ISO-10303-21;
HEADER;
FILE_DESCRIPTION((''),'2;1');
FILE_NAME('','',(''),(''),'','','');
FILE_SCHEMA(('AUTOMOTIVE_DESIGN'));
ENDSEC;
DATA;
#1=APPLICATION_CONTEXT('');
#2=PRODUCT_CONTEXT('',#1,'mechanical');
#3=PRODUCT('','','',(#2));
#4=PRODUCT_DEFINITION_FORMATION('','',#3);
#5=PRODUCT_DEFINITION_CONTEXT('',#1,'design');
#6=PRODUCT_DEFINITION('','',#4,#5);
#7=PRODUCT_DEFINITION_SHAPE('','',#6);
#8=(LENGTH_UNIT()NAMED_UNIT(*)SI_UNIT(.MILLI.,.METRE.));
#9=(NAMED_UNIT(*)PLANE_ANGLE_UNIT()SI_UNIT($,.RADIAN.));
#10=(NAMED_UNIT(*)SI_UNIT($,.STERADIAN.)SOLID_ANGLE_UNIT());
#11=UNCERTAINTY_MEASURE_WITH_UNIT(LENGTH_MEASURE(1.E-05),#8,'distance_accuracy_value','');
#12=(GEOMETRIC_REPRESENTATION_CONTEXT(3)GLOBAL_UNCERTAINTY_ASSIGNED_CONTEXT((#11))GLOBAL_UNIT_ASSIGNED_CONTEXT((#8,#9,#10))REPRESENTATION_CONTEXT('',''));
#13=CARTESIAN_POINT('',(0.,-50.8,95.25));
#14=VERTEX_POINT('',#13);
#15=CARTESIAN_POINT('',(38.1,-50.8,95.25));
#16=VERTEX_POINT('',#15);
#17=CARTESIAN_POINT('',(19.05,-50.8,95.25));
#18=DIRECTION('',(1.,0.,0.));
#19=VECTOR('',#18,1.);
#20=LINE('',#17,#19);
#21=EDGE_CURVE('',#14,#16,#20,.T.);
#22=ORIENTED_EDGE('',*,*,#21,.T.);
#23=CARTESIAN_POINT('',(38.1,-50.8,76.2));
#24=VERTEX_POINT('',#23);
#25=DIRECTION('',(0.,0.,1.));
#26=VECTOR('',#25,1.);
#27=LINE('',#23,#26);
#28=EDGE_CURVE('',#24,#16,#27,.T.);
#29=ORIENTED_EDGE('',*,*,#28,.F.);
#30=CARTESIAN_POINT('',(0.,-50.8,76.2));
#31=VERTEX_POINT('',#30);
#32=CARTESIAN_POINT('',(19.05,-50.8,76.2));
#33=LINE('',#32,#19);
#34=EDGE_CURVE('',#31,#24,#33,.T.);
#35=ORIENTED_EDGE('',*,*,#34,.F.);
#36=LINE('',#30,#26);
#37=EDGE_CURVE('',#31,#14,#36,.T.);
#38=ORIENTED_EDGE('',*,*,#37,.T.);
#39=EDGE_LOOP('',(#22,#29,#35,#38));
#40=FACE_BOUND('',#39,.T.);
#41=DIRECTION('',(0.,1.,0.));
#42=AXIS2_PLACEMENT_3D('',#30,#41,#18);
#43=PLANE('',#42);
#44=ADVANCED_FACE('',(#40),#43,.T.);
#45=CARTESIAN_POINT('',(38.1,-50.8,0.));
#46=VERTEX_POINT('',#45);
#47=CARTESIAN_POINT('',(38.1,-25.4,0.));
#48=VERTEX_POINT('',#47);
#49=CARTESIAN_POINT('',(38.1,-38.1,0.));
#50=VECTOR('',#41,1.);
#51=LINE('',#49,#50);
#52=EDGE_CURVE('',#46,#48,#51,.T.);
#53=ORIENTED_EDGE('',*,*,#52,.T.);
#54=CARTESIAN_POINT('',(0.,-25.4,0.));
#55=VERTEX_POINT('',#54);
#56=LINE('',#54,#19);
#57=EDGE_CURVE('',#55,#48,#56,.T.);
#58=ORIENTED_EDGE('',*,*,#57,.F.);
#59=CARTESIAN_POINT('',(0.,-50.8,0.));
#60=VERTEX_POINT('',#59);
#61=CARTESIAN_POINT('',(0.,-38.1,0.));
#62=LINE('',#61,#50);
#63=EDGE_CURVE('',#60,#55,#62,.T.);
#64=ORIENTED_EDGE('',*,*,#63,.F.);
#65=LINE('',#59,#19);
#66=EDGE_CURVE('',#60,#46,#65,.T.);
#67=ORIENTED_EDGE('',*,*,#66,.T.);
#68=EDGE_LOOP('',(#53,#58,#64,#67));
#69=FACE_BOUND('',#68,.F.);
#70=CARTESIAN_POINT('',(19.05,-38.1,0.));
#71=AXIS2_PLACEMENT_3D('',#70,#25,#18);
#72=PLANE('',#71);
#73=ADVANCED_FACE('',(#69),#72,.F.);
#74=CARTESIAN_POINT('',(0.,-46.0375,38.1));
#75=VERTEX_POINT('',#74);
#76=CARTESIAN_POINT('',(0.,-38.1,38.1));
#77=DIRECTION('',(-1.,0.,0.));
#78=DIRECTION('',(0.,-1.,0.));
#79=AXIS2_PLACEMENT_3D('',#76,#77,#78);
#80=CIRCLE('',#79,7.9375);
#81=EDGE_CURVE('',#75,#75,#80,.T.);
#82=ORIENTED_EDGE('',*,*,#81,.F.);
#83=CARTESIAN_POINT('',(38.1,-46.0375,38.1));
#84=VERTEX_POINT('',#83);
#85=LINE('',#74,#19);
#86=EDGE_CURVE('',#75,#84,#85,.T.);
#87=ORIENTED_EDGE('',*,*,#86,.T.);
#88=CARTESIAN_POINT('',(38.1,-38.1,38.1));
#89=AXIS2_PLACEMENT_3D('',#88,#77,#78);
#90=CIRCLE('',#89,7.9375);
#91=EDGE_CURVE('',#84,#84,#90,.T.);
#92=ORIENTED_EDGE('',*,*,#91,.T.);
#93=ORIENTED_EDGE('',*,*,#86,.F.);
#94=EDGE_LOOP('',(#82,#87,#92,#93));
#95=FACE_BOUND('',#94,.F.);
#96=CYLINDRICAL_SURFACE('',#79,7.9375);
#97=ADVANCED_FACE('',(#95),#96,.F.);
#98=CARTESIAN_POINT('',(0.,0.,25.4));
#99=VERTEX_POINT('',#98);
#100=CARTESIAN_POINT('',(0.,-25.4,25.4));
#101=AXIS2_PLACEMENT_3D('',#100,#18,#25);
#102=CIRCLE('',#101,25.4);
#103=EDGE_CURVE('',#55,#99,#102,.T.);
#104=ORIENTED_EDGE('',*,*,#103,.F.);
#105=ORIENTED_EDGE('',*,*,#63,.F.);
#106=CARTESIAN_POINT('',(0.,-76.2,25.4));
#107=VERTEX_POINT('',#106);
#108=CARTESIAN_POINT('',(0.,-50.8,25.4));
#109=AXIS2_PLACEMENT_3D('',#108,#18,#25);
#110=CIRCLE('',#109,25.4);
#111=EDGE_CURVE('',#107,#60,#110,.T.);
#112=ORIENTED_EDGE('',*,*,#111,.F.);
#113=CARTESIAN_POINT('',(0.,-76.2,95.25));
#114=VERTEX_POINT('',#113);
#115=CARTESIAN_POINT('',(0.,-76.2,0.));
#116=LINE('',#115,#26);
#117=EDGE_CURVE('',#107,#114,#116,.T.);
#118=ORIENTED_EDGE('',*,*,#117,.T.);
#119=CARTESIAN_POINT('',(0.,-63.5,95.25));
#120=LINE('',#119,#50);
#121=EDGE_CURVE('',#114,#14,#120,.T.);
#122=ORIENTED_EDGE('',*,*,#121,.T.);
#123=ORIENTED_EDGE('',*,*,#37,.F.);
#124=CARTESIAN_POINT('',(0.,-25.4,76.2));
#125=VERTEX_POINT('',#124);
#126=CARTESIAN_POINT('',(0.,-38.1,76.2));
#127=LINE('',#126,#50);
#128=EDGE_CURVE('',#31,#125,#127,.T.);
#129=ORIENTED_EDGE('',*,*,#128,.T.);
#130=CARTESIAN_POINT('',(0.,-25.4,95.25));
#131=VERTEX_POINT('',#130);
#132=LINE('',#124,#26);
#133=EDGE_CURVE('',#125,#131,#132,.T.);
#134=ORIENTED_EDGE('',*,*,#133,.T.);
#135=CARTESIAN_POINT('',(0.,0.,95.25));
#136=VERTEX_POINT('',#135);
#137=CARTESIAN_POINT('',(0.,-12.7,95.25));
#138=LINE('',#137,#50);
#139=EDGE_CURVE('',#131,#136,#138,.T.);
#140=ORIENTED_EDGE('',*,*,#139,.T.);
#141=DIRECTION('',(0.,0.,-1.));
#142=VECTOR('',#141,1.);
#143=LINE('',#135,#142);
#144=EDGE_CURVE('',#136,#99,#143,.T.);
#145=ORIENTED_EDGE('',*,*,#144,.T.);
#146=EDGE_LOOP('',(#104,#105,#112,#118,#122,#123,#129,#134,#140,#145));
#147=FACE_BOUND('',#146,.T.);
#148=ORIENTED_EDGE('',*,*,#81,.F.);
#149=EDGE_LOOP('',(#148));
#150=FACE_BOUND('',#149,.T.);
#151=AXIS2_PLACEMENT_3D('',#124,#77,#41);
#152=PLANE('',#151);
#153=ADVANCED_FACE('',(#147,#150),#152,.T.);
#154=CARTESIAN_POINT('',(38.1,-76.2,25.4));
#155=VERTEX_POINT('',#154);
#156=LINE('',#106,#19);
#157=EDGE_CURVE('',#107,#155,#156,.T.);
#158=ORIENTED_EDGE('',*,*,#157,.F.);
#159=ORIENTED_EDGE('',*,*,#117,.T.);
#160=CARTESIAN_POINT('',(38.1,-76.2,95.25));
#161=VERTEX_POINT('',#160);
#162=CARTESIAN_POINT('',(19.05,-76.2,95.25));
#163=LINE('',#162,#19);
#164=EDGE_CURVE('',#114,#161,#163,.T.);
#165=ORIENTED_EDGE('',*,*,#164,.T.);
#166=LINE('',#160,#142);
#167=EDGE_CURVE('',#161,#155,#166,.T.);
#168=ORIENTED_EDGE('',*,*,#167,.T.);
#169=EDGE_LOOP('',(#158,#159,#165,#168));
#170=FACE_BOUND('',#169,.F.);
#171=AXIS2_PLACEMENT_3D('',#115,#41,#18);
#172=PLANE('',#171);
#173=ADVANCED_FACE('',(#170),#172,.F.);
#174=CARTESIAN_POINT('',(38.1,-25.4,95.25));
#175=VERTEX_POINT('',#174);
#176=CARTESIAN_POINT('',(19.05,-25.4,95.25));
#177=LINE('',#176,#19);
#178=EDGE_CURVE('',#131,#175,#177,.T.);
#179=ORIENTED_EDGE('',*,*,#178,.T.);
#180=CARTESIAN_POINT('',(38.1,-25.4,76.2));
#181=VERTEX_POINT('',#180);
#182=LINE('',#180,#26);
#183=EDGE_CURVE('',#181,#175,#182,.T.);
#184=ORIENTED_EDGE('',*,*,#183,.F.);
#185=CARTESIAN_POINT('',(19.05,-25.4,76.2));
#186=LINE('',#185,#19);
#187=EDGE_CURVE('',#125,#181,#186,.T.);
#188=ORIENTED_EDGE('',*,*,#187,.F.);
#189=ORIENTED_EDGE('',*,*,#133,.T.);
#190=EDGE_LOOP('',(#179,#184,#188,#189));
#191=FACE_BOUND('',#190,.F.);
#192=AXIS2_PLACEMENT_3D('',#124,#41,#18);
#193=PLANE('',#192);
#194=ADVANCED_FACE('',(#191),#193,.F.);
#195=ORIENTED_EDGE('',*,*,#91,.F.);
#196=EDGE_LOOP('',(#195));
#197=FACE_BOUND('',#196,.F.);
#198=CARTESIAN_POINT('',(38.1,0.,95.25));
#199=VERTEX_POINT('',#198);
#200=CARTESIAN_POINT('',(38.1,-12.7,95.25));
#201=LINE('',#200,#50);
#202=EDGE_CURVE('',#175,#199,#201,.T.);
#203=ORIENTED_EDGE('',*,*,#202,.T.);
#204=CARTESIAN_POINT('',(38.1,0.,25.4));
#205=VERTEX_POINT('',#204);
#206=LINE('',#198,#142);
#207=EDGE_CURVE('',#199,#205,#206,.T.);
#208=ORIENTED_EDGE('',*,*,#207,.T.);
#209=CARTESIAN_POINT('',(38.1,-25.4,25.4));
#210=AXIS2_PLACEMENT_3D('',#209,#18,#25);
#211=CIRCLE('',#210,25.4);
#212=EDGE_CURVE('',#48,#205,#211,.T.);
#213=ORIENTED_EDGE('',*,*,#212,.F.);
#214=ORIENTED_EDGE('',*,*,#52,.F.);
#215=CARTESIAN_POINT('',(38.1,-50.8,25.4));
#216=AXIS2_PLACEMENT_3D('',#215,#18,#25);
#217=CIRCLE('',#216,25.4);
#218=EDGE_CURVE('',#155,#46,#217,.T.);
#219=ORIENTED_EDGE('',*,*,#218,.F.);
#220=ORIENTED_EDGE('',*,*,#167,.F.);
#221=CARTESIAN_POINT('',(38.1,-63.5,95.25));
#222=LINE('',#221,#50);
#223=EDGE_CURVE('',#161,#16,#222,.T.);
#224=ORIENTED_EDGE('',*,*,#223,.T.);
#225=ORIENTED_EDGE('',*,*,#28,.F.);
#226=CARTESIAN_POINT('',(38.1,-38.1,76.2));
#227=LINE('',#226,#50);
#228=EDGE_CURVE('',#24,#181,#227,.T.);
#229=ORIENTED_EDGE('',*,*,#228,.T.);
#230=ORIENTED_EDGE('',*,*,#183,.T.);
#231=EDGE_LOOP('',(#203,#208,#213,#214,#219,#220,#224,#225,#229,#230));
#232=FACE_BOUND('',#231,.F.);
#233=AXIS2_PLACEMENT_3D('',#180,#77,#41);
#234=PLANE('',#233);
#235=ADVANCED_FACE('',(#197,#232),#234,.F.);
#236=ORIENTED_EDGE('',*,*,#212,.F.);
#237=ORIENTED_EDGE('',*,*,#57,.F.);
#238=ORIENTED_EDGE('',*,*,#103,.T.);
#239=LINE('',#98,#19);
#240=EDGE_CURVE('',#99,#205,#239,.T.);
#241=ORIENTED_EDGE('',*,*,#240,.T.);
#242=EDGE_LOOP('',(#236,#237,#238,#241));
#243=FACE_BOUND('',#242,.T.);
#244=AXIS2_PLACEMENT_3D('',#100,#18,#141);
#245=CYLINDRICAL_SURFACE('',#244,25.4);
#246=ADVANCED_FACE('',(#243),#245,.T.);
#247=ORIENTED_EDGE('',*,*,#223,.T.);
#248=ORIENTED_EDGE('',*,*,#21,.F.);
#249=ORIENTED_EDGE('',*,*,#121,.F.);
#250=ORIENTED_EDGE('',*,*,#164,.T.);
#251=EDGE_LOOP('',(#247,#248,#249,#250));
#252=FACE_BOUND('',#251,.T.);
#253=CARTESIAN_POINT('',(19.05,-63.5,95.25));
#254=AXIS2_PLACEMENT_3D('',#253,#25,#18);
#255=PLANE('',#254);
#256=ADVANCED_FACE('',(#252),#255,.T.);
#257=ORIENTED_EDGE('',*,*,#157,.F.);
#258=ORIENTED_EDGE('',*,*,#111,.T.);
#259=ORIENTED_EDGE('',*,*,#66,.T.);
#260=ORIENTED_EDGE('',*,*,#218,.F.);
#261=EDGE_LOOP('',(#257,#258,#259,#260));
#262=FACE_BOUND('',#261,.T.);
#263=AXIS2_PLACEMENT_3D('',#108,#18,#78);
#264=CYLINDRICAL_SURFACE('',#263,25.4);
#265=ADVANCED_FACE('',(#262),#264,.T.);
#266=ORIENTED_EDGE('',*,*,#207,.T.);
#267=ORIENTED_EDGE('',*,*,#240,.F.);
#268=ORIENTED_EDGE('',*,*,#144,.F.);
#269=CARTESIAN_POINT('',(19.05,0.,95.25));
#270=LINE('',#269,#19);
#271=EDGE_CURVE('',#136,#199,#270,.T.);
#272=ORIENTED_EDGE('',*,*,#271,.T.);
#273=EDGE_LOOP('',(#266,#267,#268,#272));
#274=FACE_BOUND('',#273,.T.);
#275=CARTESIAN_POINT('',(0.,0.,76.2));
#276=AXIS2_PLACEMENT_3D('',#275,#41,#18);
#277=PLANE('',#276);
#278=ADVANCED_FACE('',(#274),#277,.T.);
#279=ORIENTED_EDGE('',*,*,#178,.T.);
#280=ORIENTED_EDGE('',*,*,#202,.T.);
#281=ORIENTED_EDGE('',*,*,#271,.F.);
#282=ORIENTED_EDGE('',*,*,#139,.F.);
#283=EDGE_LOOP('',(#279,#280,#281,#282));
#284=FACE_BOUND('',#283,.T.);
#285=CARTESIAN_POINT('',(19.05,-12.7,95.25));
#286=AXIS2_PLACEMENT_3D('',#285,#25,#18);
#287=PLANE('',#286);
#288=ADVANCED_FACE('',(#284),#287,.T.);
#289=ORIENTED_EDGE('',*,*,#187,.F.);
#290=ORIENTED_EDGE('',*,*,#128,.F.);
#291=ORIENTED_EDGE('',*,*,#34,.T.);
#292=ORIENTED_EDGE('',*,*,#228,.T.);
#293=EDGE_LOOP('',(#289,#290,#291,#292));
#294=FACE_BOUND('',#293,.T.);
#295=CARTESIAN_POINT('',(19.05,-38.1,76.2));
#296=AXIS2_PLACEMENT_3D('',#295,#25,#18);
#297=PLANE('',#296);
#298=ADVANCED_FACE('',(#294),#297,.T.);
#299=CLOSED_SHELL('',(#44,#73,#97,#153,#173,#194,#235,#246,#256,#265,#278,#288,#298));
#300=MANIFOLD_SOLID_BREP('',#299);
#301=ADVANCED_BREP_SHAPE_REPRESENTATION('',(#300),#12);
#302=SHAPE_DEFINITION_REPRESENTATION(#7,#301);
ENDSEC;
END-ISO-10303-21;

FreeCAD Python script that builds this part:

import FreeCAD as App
import Part
import Sketcher

V = App.Vector
Q = App.Units.Quantity


def edges_at(feature, points):
    """Names of the edges that pass closest to the given points."""
    edges = feature.Shape.Edges
    near = lambda p: min(range(len(edges)), key=lambda i: edges[i].distToShape(Part.Vertex(*p))[0])
    return sorted({f"Edge{near(p) + 1}" for p in points})

doc = App.newDocument("Part")
body = doc.addObject("PartDesign::Body", "Body")

# Sketch on XY plane
sketch1 = body.newObject("Sketcher::SketchObject", "Sketch")
sketch1.AttachmentSupport = (doc.getObject("XY_Plane"), [""])
sketch1.MapMode = "FlatFace"
sketch1.addGeometry([
    Part.LineSegment(V(0, 0, 0), V(0, -76.2, 0)),
    Part.LineSegment(V(0, -76.2, 0), V(38.1, -76.2, 0)),
    Part.LineSegment(V(38.1, -76.2, 0), V(38.1, 0, 0)),
    Part.LineSegment(V(38.1, 0, 0), V(0, 0, 0)),
], False)
sketch1.addConstraint([
    Sketcher.Constraint("Coincident", 0, 2, 1, 1),
    Sketcher.Constraint("Coincident", 1, 2, 2, 1),
    Sketcher.Constraint("Coincident", 2, 2, 3, 1),
    Sketcher.Constraint("Coincident", 3, 2, 0, 1),
    Sketcher.Constraint("Vertical", 0),
    Sketcher.Constraint("Horizontal", 1),
    Sketcher.Constraint("Vertical", 2),
    Sketcher.Constraint("Horizontal", 3),
    Sketcher.Constraint("Coincident", 3, 2, -1, 1),
    Sketcher.Constraint("DistanceY", 0, 2, 0, 1, Q("3 in")),
    Sketcher.Constraint("DistanceX", 1, 1, 1, 2, Q("1.5 in")),
])
pad1 = body.newObject("PartDesign::Pad", "Pad")
pad1.Profile = sketch1
pad1.Length = Q("3 in")

# Sketch on YZ plane
sketch2 = body.newObject("Sketcher::SketchObject", "Sketch001")
sketch2.AttachmentSupport = (doc.getObject("YZ_Plane"), [""])
sketch2.MapMode = "FlatFace"
sketch2.addGeometry(Part.Circle(V(-38.1, 38.1, 0), V(0, 0, 1), 7.9375), False)
sketch2.addConstraint([
    Sketcher.Constraint("Diameter", 0, Q("0.625 in")),
    Sketcher.Constraint("DistanceX", 0, 3, -1, 1, Q("1.5 in")),
    Sketcher.Constraint("DistanceY", -1, 1, 0, 3, Q("1.5 in")),
])
pocket1 = body.newObject("PartDesign::Pocket", "Pocket")
pocket1.Profile = sketch2
pocket1.Length = Q("2.36 in")
pocket1.Reversed = True

# Sketch on XY plane
sketch3 = body.newObject("Sketcher::SketchObject", "Sketch002")
sketch3.AttachmentSupport = (doc.getObject("XY_Plane"), [""])
sketch3.MapMode = "FlatFace"
sketch3.AttachmentOffset = App.Placement(V(0, 0, 3 * 25.4), App.Rotation())
sketch3.addGeometry([
    Part.LineSegment(V(0, 0, 0), V(0, -25.4, 0)),  # 0
    Part.LineSegment(V(0, -25.4, 0), V(38.1, -25.4, 0)),  # 1
    Part.LineSegment(V(38.1, -25.4, 0), V(38.1, 0, 0)),  # 2
    Part.LineSegment(V(38.1, 0, 0), V(0, 0, 0)),  # 3
    Part.LineSegment(V(0, -50.8, 0), V(0, -76.2, 0)),  # 4
    Part.LineSegment(V(0, -76.2, 0), V(38.1, -76.2, 0)),  # 5
    Part.LineSegment(V(38.1, -76.2, 0), V(38.1, -50.8, 0)),  # 6
    Part.LineSegment(V(38.1, -50.8, 0), V(0, -50.8, 0)),  # 7
], False)
sketch3.addConstraint([
    Sketcher.Constraint("Coincident", 0, 2, 1, 1),
    Sketcher.Constraint("Coincident", 1, 2, 2, 1),
    Sketcher.Constraint("Coincident", 2, 2, 3, 1),
    Sketcher.Constraint("Coincident", 3, 2, 0, 1),
    Sketcher.Constraint("Coincident", 4, 2, 5, 1),
    Sketcher.Constraint("Coincident", 5, 2, 6, 1),
    Sketcher.Constraint("Coincident", 6, 2, 7, 1),
    Sketcher.Constraint("Coincident", 7, 2, 4, 1),
    Sketcher.Constraint("Vertical", 0),
    Sketcher.Constraint("Horizontal", 1),
    Sketcher.Constraint("Vertical", 2),
    Sketcher.Constraint("Horizontal", 3),
    Sketcher.Constraint("Vertical", 4),
    Sketcher.Constraint("Horizontal", 5),
    Sketcher.Constraint("Vertical", 6),
    Sketcher.Constraint("Horizontal", 7),
    Sketcher.Constraint("Coincident", 3, 2, -1, 1),
    Sketcher.Constraint("PointOnObject", 4, 2, -2),
    Sketcher.Constraint("Vertical", 2, 2, 5, 2),
    Sketcher.Constraint("Equal", 2, 4),
    Sketcher.Constraint("DistanceY", 0, 2, 0, 1, Q("1 in")),
    Sketcher.Constraint("DistanceX", 1, 1, 1, 2, Q("1.5 in")),
    Sketcher.Constraint("DistanceY", 4, 2, -1, 1, Q("3 in")),
])
pad2 = body.newObject("PartDesign::Pad", "Pad001")
pad2.Profile = sketch3
pad2.Length = Q("0.75 in")
doc.recompute()

fillet = body.newObject("PartDesign::Fillet", "Fillet")
fillet.Base = (pad2, edges_at(pad2, [(19.05, 0, 0), (19.05, -76.2, 0)]))
fillet.Radius = Q("1 in")

doc.recompute()
